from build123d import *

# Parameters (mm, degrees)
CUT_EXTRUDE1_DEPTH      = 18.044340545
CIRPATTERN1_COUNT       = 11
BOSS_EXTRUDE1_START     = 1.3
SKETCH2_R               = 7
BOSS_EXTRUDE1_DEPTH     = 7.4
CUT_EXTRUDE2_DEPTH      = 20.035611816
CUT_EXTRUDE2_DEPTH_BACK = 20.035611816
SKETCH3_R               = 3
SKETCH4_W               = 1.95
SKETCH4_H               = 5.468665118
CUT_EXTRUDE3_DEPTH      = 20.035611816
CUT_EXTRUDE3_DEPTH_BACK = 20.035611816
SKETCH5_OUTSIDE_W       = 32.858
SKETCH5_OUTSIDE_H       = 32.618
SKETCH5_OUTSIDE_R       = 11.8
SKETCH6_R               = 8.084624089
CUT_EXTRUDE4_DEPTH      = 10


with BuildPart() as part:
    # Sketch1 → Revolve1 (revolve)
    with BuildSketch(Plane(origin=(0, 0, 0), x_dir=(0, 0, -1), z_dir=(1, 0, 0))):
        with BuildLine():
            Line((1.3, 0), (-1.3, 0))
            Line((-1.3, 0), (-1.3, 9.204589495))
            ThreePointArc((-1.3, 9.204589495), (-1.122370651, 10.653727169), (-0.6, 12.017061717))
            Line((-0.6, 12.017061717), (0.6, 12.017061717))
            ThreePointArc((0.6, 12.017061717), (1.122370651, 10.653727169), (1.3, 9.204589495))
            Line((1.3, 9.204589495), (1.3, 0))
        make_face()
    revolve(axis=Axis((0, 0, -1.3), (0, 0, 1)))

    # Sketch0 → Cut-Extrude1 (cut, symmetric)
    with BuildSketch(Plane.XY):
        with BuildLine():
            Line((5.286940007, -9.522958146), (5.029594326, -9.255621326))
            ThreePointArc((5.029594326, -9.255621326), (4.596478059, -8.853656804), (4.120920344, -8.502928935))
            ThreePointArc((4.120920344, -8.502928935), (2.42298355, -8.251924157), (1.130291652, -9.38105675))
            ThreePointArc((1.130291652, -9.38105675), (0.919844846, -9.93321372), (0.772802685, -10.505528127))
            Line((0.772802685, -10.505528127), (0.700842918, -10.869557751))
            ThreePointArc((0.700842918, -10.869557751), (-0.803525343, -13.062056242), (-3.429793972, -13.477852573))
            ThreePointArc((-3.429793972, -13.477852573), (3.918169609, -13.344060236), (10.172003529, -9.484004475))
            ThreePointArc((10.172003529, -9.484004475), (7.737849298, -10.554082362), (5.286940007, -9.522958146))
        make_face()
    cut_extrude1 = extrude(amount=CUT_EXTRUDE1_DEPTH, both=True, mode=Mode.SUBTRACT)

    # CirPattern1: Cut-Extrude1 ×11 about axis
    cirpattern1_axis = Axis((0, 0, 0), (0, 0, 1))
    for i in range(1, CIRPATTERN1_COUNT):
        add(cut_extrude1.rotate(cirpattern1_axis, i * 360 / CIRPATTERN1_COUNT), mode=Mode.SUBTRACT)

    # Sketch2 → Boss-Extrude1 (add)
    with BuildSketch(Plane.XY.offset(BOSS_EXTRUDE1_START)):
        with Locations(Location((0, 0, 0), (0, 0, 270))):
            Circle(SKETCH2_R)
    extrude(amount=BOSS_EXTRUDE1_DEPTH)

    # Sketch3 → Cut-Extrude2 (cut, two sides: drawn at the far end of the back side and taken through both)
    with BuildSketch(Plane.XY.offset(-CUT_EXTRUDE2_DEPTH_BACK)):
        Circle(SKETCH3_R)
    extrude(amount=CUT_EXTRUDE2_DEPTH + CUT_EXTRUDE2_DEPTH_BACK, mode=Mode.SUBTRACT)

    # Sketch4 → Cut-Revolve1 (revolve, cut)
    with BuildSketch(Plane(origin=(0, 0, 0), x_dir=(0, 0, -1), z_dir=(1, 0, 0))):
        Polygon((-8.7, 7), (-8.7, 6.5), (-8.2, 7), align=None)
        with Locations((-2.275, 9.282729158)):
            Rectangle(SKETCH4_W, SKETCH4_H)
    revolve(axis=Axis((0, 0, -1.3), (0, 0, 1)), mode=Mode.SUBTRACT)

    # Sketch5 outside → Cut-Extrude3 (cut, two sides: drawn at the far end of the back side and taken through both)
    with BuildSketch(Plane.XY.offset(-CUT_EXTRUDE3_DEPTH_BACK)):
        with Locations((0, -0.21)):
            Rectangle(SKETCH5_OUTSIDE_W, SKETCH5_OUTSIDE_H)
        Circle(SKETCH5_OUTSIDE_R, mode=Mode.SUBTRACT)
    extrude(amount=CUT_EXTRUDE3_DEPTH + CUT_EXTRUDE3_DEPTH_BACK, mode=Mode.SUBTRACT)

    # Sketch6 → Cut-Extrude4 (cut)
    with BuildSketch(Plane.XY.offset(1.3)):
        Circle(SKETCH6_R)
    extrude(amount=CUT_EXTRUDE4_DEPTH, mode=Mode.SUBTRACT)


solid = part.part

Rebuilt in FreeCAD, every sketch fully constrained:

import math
import FreeCAD as App
import Part
import Sketcher
Q = App.Units.Quantity


def add_polygon(sketch, points):
    """Adds a closed chain of lines whose ends are joined by coincident constraints."""
    first, n = sketch.GeometryCount, len(points)
    for a, b in zip(points, points[1:] + points[:1]):
        sketch.addGeometry(Part.LineSegment(App.Vector(*a, 0), App.Vector(*b, 0)), False)
    for i in range(n):
        sketch.addConstraint(Sketcher.Constraint("Coincident", first + i, 2, first + (i + 1) % n, 1))

doc = App.newDocument("Part")
params = doc.addObject("Spreadsheet::Sheet", "Params")
for row, (alias, value) in enumerate([
    ("sketch1_radius", "6 mm"),
    ("sketch1_height", "2.6 mm"),
    ("sketch1_height2", "1.2 mm"),
    ("revolution_angle", "360 deg"),
    ("pocket1_length", "36.088681 mm"),
    ("sketch3_diameter", "14 mm"),
    ("pad1_length", "7.4 mm"),
    ("sketch4_diameter", "6 mm"),
    ("sketch5_width", "0.5 mm"),
    ("sketch5_height", "1.95 mm"),
    ("groove_angle", "360 deg"),
    ("sketch6_diameter", "23.6 mm"),
    ("pocket4_length", "10 mm"),
], start=1):
    params.set(f"A{row}", alias)
    params.set(f"B{row}", "=" + value)
    params.setAlias(f"B{row}", alias)

body = doc.addObject("PartDesign::Body", "Body")

sketch1 = body.newObject("Sketcher::SketchObject", "Sketch")
sketch1.AttachmentSupport = (doc.getObject("YZ_Plane"), [""])
sketch1.MapMode = "FlatFace"
sketch1.addGeometry(Part.LineSegment(App.Vector(0, 1.3, 0), App.Vector(0, -1.3, 0)), False)
sketch1.addGeometry(Part.LineSegment(App.Vector(0, -1.3, 0), App.Vector(9.2, -1.3, 0)), False)
sketch1.addGeometry(Part.ArcOfCircle(Part.Circle(App.Vector(9.2, 4.7, 0), App.Vector(0, 0, 1), 6), math.radians(-90), math.radians(-62)), False)
sketch1.addGeometry(Part.LineSegment(App.Vector(12, -0.6, 0), App.Vector(12, 0.6, 0)), False)
sketch1.addGeometry(Part.ArcOfCircle(Part.Circle(App.Vector(9.2, -4.7, 0), App.Vector(0, 0, 1), 6), math.radians(62), math.radians(90)), False)
sketch1.addGeometry(Part.LineSegment(App.Vector(9.2, 1.3, 0), App.Vector(0, 1.3, 0)), False)
sketch1.addConstraint(Sketcher.Constraint("Coincident", 0, 2, 1, 1))
sketch1.addConstraint(Sketcher.Constraint("Tangent", 1, 2, 2, 1))
sketch1.addConstraint(Sketcher.Constraint("Coincident", 2, 2, 3, 1))
sketch1.addConstraint(Sketcher.Constraint("Coincident", 3, 2, 4, 1))
sketch1.addConstraint(Sketcher.Constraint("Tangent", 4, 2, 5, 1))
sketch1.addConstraint(Sketcher.Constraint("Coincident", 5, 2, 0, 1))
sketch1.addConstraint(Sketcher.Constraint("Vertical", 0))
sketch1.addConstraint(Sketcher.Constraint("Horizontal", 1))
sketch1.addConstraint(Sketcher.Constraint("Vertical", 3))
sketch1.addConstraint(Sketcher.Constraint("Horizontal", 5))
sketch1.addConstraint(Sketcher.Constraint("Equal", 2, 4))
sketch1.addConstraint(Sketcher.Constraint("Symmetric", 0, 2, 5, 2, -1, 1))
sketch1.addConstraint(Sketcher.Constraint("Vertical", 2, 3, 4, 3))
sketch1.addConstraint(Sketcher.Constraint("Radius", 2, Q("6 mm")))
sketch1.addConstraint(Sketcher.Constraint("DistanceY", 0, 2, 0, 1, Q("2.6 mm")))
sketch1.addConstraint(Sketcher.Constraint("DistanceY", 3, 1, 3, 2, Q("1.2 mm")))
sketch1.addConstraint(Sketcher.Constraint("DistanceX", 1, 1, 1, 2, Q("9.204589 mm")))
sketch1.setExpression("Constraints[13]", "Params.sketch1_radius")
sketch1.setExpression("Constraints[14]", "Params.sketch1_height")
sketch1.setExpression("Constraints[15]", "Params.sketch1_height2")
revolution = body.newObject("PartDesign::Revolution", "Revolution")
revolution.Profile = sketch1
revolution.ReferenceAxis = (sketch1, ["V_Axis"])
revolution.setExpression("Angle", "Params.revolution_angle")

sketch2 = body.newObject("Sketcher::SketchObject", "Sketch001")
sketch2.AttachmentSupport = (doc.getObject("XY_Plane"), [""])
sketch2.MapMode = "FlatFace"
sketch2.addGeometry(Part.LineSegment(App.Vector(5.29, -9.52, 0), App.Vector(5.03, -9.26, 0)), False)
sketch2.addGeometry(Part.ArcOfCircle(Part.Circle(App.Vector(1.25, -12.9, 0), App.Vector(0, 0, 1), 5.25), math.radians(43.91), math.radians(56.82)), False)
sketch2.addGeometry(Part.ArcOfCircle(Part.Circle(App.Vector(3, -10.22, 0), App.Vector(0, 0, 1), 2.05), math.radians(57), math.radians(156)), False)
sketch2.addGeometry(Part.ArcOfCircle(Part.Circle(App.Vector(5.92, -11.52, 0), App.Vector(0, 0, 1), 5.25), math.radians(155.91), math.radians(168.82)), False)
sketch2.addGeometry(Part.LineSegment(App.Vector(0.77, -10.51, 0), App.Vector(0.7, -10.87, 0)), False)
sketch2.addGeometry(Part.ArcOfCircle(Part.Circle(App.Vector(-2.6, -10.22, 0), App.Vector(0, 0, 1), 3.36), math.radians(-104), math.radians(-11)), False)
sketch2.addGeometry(Part.ArcOfCircle(Part.Circle(App.Vector(0, 0, 0), App.Vector(0, 0, 1), 13.91), math.radians(-104), math.radians(-43)), False)
sketch2.addGeometry(Part.ArcOfCircle(Part.Circle(App.Vector(7.71, -7.19, 0), App.Vector(0, 0, 1), 3.36), math.radians(-136), math.radians(-43)), False)
sketch2.addConstraint(Sketcher.Constraint("Tangent", 0, 2, 1, 1))
sketch2.addConstraint(Sketcher.Constraint("Tangent", 1, 2, 2, 1))
sketch2.addConstraint(Sketcher.Constraint("Tangent", 2, 2, 3, 1))
sketch2.addConstraint(Sketcher.Constraint("Tangent", 3, 2, 4, 1))
sketch2.addConstraint(Sketcher.Constraint("Tangent", 4, 2, 5, 2))
sketch2.addConstraint(Sketcher.Constraint("Tangent", 5, 1, 6, 1))
sketch2.addConstraint(Sketcher.Constraint("Tangent", 6, 2, 7, 2))
sketch2.addConstraint(Sketcher.Constraint("Tangent", 7, 1, 0, 1))
sketch2.addConstraint(Sketcher.Constraint("Coincident", 6, 3, -1, 1))
sketch2.addConstraint(Sketcher.Constraint("Equal", 1, 3))
sketch2.addConstraint(Sketcher.Constraint("Equal", 5, 7))
sketch2.addConstraint(Sketcher.Constraint("Horizontal", 2, 3, 5, 3))
sketch2.addConstraint(Sketcher.Constraint("Equal", 0, 4))
sketch2.addConstraint(Sketcher.Constraint("DistanceX", -1, 1, 2, 3, Q("3 mm")))
sketch2.addConstraint(Sketcher.Constraint("DistanceX", 5, 3, -1, 1, Q("2.6 mm")))
sketch2.addConstraint(Sketcher.Constraint("Radius", 1, Q("5.2481 mm")))
sketch2.addConstraint(Sketcher.Constraint("Radius", 2, Q("2.0481 mm")))
sketch2.addConstraint(Sketcher.Constraint("Radius", 5, Q("3.364716 mm")))
sketch2.addConstraint(Sketcher.Constraint("Radius", 6, Q("13.907408 mm")))
sketch2.addConstraint(Sketcher.Constraint("DistanceY", 1, 3, 2, 3, Q("2.678202 mm")))
sketch2.addConstraint(Sketcher.Constraint("DistanceX", 1, 2, 7, 3, Q("3.590099 mm")))
pocket1 = body.newObject("PartDesign::Pocket", "Pocket")
pocket1.Profile = sketch2
pocket1.setExpression("Length", "Params.pocket1_length")
pocket1.Midplane = True
doc.recompute()

polarpattern = body.newObject("PartDesign::PolarPattern", "PolarPattern")
polarpattern.Originals = [pocket1]
polarpattern.Axis = (doc.getObject("Z_Axis"), [""])
polarpattern.Angle = 360
polarpattern.Occurrences = 11
body.Tip = polarpattern

sketch3 = body.newObject("Sketcher::SketchObject", "Sketch002")
sketch3.AttachmentSupport = (doc.getObject("XY_Plane"), [""])
sketch3.MapMode = "FlatFace"
sketch3.AttachmentOffset = App.Placement(App.Vector(0, 0, 1.3), App.Rotation())
sketch3.addGeometry(Part.Circle(App.Vector(0, 0, 0), App.Vector(0, 0, 1), 7), False)
sketch3.addConstraint(Sketcher.Constraint("Coincident", 0, 3, -1, 1))
sketch3.addConstraint(Sketcher.Constraint("Diameter", 0, Q("14 mm")))
sketch3.setExpression("Constraints[1]", "Params.sketch3_diameter")
pad1 = body.newObject("PartDesign::Pad", "Pad")
pad1.Profile = sketch3
pad1.setExpression("Length", "Params.pad1_length")

sketch4 = body.newObject("Sketcher::SketchObject", "Sketch003")
sketch4.AttachmentSupport = (doc.getObject("XY_Plane"), [""])
sketch4.MapMode = "FlatFace"
sketch4.addGeometry(Part.Circle(App.Vector(0, 0, 0), App.Vector(0, 0, 1), 3), False)
sketch4.addConstraint(Sketcher.Constraint("Coincident", 0, 3, -1, 1))
sketch4.addConstraint(Sketcher.Constraint("Diameter", 0, Q("6 mm")))
sketch4.setExpression("Constraints[1]", "Params.sketch4_diameter")
pocket2 = body.newObject("PartDesign::Pocket", "Pocket001")
pocket2.Profile = sketch4
pocket2.Type = "ThroughAll"
pocket2.Midplane = True

sketch5 = body.newObject("Sketcher::SketchObject", "Sketch004")
sketch5.AttachmentSupport = (doc.getObject("YZ_Plane"), [""])
sketch5.MapMode = "FlatFace"
add_polygon(sketch5, [(7, 8.7), (6.5, 8.7), (7, 8.2)])
add_polygon(sketch5, [(12, 3.2), (6.5, 3.2), (6.5, 1.3), (12, 1.3)])
sketch5.addConstraint(Sketcher.Constraint("Horizontal", 0))
sketch5.addConstraint(Sketcher.Constraint("Vertical", 2))
sketch5.addConstraint(Sketcher.Constraint("Horizontal", 3))
sketch5.addConstraint(Sketcher.Constraint("Vertical", 4))
sketch5.addConstraint(Sketcher.Constraint("Horizontal", 5))
sketch5.addConstraint(Sketcher.Constraint("Vertical", 6))
sketch5.addConstraint(Sketcher.Constraint("Equal", 0, 2))
sketch5.addConstraint(Sketcher.Constraint("DistanceX", 0, 2, 0, 1, Q("0.5 mm")))
sketch5.addConstraint(Sketcher.Constraint("DistanceX", -1, 1, 1, 2, Q("7 mm")))
sketch5.addConstraint(Sketcher.Constraint("DistanceY", 4, 2, 4, 1, Q("1.95 mm")))
sketch5.addConstraint(Sketcher.Constraint("DistanceY", -1, 1, 0, 2, Q("8.7 mm")))
sketch5.addConstraint(Sketcher.Constraint("DistanceY", -1, 1, 4, 2, Q("1.3 mm")))
sketch5.addConstraint(Sketcher.Constraint("DistanceX", 3, 2, 3, 1, Q("5.468665 mm")))
sketch5.addConstraint(Sketcher.Constraint("DistanceX", -1, 1, 5, 2, Q("12.017062 mm")))
sketch5.setExpression("Constraints[14]", "Params.sketch5_width")
sketch5.setExpression("Constraints[16]", "Params.sketch5_height")
groove = body.newObject("PartDesign::Groove", "Groove")
groove.Profile = sketch5
groove.ReferenceAxis = (sketch5, ["V_Axis"])
groove.setExpression("Angle", "Params.groove_angle")

sketch6 = body.newObject("Sketcher::SketchObject", "Sketch005")
sketch6.AttachmentSupport = (doc.getObject("XY_Plane"), [""])
sketch6.MapMode = "FlatFace"
add_polygon(sketch6, [(-16, 16), (-16, -17), (16, -17), (16, 16)])
sketch6.addGeometry(Part.Circle(App.Vector(0, 0, 0), App.Vector(0, 0, 1), 12), False)
sketch6.addConstraint(Sketcher.Constraint("Vertical", 0))
sketch6.addConstraint(Sketcher.Constraint("Horizontal", 1))
sketch6.addConstraint(Sketcher.Constraint("Vertical", 2))
sketch6.addConstraint(Sketcher.Constraint("Horizontal", 3))
sketch6.addConstraint(Sketcher.Constraint("Coincident", 4, 3, -1, 1))
sketch6.addConstraint(Sketcher.Constraint("Diameter", 4, Q("23.6 mm")))
sketch6.addConstraint(Sketcher.Constraint("DistanceX", 1, 1, 1, 2, Q("32.858 mm")))
sketch6.addConstraint(Sketcher.Constraint("DistanceY", 0, 2, 0, 1, Q("32.618 mm")))
sketch6.addConstraint(Sketcher.Constraint("DistanceX", 0, 2, -1, 1, Q("16.429 mm")))
sketch6.addConstraint(Sketcher.Constraint("DistanceY", 0, 2, -1, 1, Q("16.519 mm")))
sketch6.setExpression("Constraints[9]", "Params.sketch6_diameter")
pocket3 = body.newObject("PartDesign::Pocket", "Pocket002")
pocket3.Profile = sketch6
pocket3.Type = "ThroughAll"
pocket3.Midplane = True

sketch7 = body.newObject("Sketcher::SketchObject", "Sketch006")
sketch7.AttachmentSupport = (doc.getObject("XY_Plane"), [""])
sketch7.MapMode = "FlatFace"
sketch7.AttachmentOffset = App.Placement(App.Vector(0, 0, 1.3), App.Rotation())
sketch7.addGeometry(Part.Circle(App.Vector(0, 0, 0), App.Vector(0, 0, 1), 8), False)
sketch7.addConstraint(Sketcher.Constraint("Coincident", 0, 3, -1, 1))
sketch7.addConstraint(Sketcher.Constraint("Diameter", 0, Q("16.169248 mm")))
pocket4 = body.newObject("PartDesign::Pocket", "Pocket003")
pocket4.Profile = sketch7
pocket4.setExpression("Length", "Params.pocket4_length")
pocket4.Reversed = True

doc.recompute()
